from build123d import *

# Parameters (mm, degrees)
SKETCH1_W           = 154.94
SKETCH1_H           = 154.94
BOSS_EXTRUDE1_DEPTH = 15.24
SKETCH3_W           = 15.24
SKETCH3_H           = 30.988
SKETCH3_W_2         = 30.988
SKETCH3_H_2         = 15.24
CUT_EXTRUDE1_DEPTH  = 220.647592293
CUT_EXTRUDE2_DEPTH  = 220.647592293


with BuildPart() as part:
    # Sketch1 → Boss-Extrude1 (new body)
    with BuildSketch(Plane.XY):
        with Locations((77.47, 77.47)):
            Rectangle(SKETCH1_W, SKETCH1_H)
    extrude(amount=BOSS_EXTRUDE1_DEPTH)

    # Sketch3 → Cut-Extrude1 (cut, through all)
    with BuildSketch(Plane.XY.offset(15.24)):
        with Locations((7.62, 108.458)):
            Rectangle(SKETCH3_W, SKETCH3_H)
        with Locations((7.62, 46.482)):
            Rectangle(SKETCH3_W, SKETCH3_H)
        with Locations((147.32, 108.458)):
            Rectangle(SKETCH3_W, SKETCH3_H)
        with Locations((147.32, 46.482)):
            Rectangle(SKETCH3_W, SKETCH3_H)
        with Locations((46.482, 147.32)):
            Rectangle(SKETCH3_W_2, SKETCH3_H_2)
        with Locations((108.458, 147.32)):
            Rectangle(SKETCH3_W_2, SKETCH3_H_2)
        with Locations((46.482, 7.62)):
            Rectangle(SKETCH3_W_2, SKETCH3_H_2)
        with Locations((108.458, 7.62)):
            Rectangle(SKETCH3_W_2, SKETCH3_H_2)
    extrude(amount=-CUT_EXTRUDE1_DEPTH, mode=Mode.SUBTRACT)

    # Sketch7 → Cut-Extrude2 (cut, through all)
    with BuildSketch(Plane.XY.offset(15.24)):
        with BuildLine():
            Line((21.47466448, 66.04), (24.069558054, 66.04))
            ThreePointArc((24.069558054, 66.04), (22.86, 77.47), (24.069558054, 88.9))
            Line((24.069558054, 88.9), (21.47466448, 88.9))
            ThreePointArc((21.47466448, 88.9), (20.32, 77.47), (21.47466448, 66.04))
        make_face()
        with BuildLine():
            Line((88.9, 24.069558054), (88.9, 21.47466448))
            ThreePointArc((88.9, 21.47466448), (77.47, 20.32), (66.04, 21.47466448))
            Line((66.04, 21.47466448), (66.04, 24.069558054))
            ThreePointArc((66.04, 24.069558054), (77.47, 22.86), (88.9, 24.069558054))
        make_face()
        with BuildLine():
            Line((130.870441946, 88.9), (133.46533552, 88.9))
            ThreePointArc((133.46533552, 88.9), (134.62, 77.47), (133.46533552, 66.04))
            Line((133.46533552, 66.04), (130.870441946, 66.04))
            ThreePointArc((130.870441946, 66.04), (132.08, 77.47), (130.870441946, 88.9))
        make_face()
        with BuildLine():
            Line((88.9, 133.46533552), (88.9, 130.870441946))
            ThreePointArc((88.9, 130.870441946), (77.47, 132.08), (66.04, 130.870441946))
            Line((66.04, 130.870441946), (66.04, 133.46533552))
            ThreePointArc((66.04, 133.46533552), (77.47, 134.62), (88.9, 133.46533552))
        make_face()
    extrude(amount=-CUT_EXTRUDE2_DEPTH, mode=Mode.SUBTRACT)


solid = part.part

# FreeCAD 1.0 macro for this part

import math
import FreeCAD as App
import Part
import Sketcher
from FreeCAD import Vector
Q = App.Units.Quantity

doc = App.newDocument("Part")
body = doc.addObject("PartDesign::Body", "Body")

# Sketch on XY plane
sketch1 = doc.addObject("Sketcher::SketchObject", "Sketch")
body.addObject(sketch1)
sketch1.AttachmentSupport = (doc.XY_Plane, [""])
sketch1.MapMode = "FlatFace"
sketch1.addGeometry([
    Part.LineSegment(Vector(0, 154.94, 0), Vector(0, 0, 0)),
    Part.LineSegment(Vector(0, 0, 0), Vector(154.94, 0, 0)),
    Part.LineSegment(Vector(154.94, 0, 0), Vector(154.94, 154.94, 0)),
    Part.LineSegment(Vector(154.94, 154.94, 0), Vector(0, 154.94, 0)),
], False)
sketch1.addConstraint([
    Sketcher.Constraint("Coincident", 0, 2, 1, 1),
    Sketcher.Constraint("Coincident", 1, 2, 2, 1),
    Sketcher.Constraint("Coincident", 2, 2, 3, 1),
    Sketcher.Constraint("Coincident", 3, 2, 0, 1),
    Sketcher.Constraint("Vertical", 0),
    Sketcher.Constraint("Horizontal", 1),
    Sketcher.Constraint("Vertical", 2),
    Sketcher.Constraint("Horizontal", 3),
    Sketcher.Constraint("Coincident", 0, 2, -1, 1),
    Sketcher.Constraint("Equal", 3, 0),
    Sketcher.Constraint("DistanceX", 1, 1, 1, 2, Q("6.1 in")),
])
pad1 = doc.addObject("PartDesign::Pad", "Pad")
body.addObject(pad1)
pad1.Profile = sketch1
pad1.Length = Q("0.6 in")

# Sketch on XY plane
sketch2 = doc.addObject("Sketcher::SketchObject", "Sketch001")
body.addObject(sketch2)
sketch2.AttachmentSupport = (doc.XY_Plane, [""])
sketch2.MapMode = "FlatFace"
sketch2.AttachmentOffset = App.Placement(Vector(0, 0, 0.6 * 25.4), App.Rotation())
sketch2.addGeometry([
    Part.LineSegment(Vector(0, 123.952, 0), Vector(0, 92.964, 0)),  # 0
    Part.LineSegment(Vector(0, 92.964, 0), Vector(15.24, 92.964, 0)),  # 1
    Part.LineSegment(Vector(15.24, 92.964, 0), Vector(15.24, 123.952, 0)),  # 2
    Part.LineSegment(Vector(15.24, 123.952, 0), Vector(0, 123.952, 0)),  # 3
    Part.LineSegment(Vector(0, 61.976, 0), Vector(0, 30.988, 0)),  # 4
    Part.LineSegment(Vector(0, 30.988, 0), Vector(15.24, 30.988, 0)),  # 5
    Part.LineSegment(Vector(15.24, 30.988, 0), Vector(15.24, 61.976, 0)),  # 6
    Part.LineSegment(Vector(15.24, 61.976, 0), Vector(0, 61.976, 0)),  # 7
    Part.LineSegment(Vector(139.7, 123.952, 0), Vector(139.7, 92.964, 0)),  # 8
    Part.LineSegment(Vector(139.7, 92.964, 0), Vector(154.94, 92.964, 0)),  # 9
    Part.LineSegment(Vector(154.94, 92.964, 0), Vector(154.94, 123.952, 0)),  # 10
    Part.LineSegment(Vector(154.94, 123.952, 0), Vector(139.7, 123.952, 0)),  # 11
    Part.LineSegment(Vector(139.7, 61.976, 0), Vector(139.7, 30.988, 0)),  # 12
    Part.LineSegment(Vector(139.7, 30.988, 0), Vector(154.94, 30.988, 0)),  # 13
    Part.LineSegment(Vector(154.94, 30.988, 0), Vector(154.94, 61.976, 0)),  # 14
    Part.LineSegment(Vector(154.94, 61.976, 0), Vector(139.7, 61.976, 0)),  # 15
    Part.LineSegment(Vector(30.988, 154.94, 0), Vector(30.988, 139.7, 0)),  # 16
    Part.LineSegment(Vector(30.988, 139.7, 0), Vector(61.976, 139.7, 0)),  # 17
    Part.LineSegment(Vector(61.976, 139.7, 0), Vector(61.976, 154.94, 0)),  # 18
    Part.LineSegment(Vector(61.976, 154.94, 0), Vector(30.988, 154.94, 0)),  # 19
    Part.LineSegment(Vector(92.964, 154.94, 0), Vector(92.964, 139.7, 0)),  # 20
    Part.LineSegment(Vector(92.964, 139.7, 0), Vector(123.952, 139.7, 0)),  # 21
    Part.LineSegment(Vector(123.952, 139.7, 0), Vector(123.952, 154.94, 0)),  # 22
    Part.LineSegment(Vector(123.952, 154.94, 0), Vector(92.964, 154.94, 0)),  # 23
    Part.LineSegment(Vector(30.988, 15.24, 0), Vector(30.988, 0, 0)),  # 24
    Part.LineSegment(Vector(30.988, 0, 0), Vector(61.976, 0, 0)),  # 25
    Part.LineSegment(Vector(61.976, 0, 0), Vector(61.976, 15.24, 0)),  # 26
    Part.LineSegment(Vector(61.976, 15.24, 0), Vector(30.988, 15.24, 0)),  # 27
    Part.LineSegment(Vector(92.964, 15.24, 0), Vector(92.964, 0, 0)),  # 28
    Part.LineSegment(Vector(92.964, 0, 0), Vector(123.952, 0, 0)),  # 29
    Part.LineSegment(Vector(123.952, 0, 0), Vector(123.952, 15.24, 0)),  # 30
    Part.LineSegment(Vector(123.952, 15.24, 0), Vector(92.964, 15.24, 0)),  # 31
], False)
sketch2.addConstraint([
    Sketcher.Constraint("Coincident", 0, 2, 1, 1),
    Sketcher.Constraint("Coincident", 1, 2, 2, 1),
    Sketcher.Constraint("Coincident", 2, 2, 3, 1),
    Sketcher.Constraint("Coincident", 3, 2, 0, 1),
    Sketcher.Constraint("Coincident", 4, 2, 5, 1),
    Sketcher.Constraint("Coincident", 5, 2, 6, 1),
    Sketcher.Constraint("Coincident", 6, 2, 7, 1),
    Sketcher.Constraint("Coincident", 7, 2, 4, 1),
    Sketcher.Constraint("Coincident", 8, 2, 9, 1),
    Sketcher.Constraint("Coincident", 9, 2, 10, 1),
    Sketcher.Constraint("Coincident", 10, 2, 11, 1),
    Sketcher.Constraint("Coincident", 11, 2, 8, 1),
    Sketcher.Constraint("Coincident", 12, 2, 13, 1),
    Sketcher.Constraint("Coincident", 13, 2, 14, 1),
    Sketcher.Constraint("Coincident", 14, 2, 15, 1),
    Sketcher.Constraint("Coincident", 15, 2, 12, 1),
    Sketcher.Constraint("Coincident", 16, 2, 17, 1),
    Sketcher.Constraint("Coincident", 17, 2, 18, 1),
    Sketcher.Constraint("Coincident", 18, 2, 19, 1),
    Sketcher.Constraint("Coincident", 19, 2, 16, 1),
    Sketcher.Constraint("Coincident", 20, 2, 21, 1),
    Sketcher.Constraint("Coincident", 21, 2, 22, 1),
    Sketcher.Constraint("Coincident", 22, 2, 23, 1),
    Sketcher.Constraint("Coincident", 23, 2, 20, 1),
    Sketcher.Constraint("Coincident", 24, 2, 25, 1),
    Sketcher.Constraint("Coincident", 25, 2, 26, 1),
    Sketcher.Constraint("Coincident", 26, 2, 27, 1),
    Sketcher.Constraint("Coincident", 27, 2, 24, 1),
    Sketcher.Constraint("Coincident", 28, 2, 29, 1),
    Sketcher.Constraint("Coincident", 29, 2, 30, 1),
    Sketcher.Constraint("Coincident", 30, 2, 31, 1),
    Sketcher.Constraint("Coincident", 31, 2, 28, 1),
    Sketcher.Constraint("Vertical", 0),
    Sketcher.Constraint("Horizontal", 1),
    Sketcher.Constraint("Vertical", 2),
    Sketcher.Constraint("Horizontal", 3),
    Sketcher.Constraint("Vertical", 4),
    Sketcher.Constraint("Horizontal", 5),
    Sketcher.Constraint("Vertical", 6),
    Sketcher.Constraint("Horizontal", 7),
    Sketcher.Constraint("Vertical", 8),
    Sketcher.Constraint("Horizontal", 9),
    Sketcher.Constraint("Vertical", 10),
    Sketcher.Constraint("Horizontal", 11),
    Sketcher.Constraint("Vertical", 12),
    Sketcher.Constraint("Horizontal", 13),
    Sketcher.Constraint("Vertical", 14),
    Sketcher.Constraint("Horizontal", 15),
    Sketcher.Constraint("Vertical", 16),
    Sketcher.Constraint("Horizontal", 17),
    Sketcher.Constraint("Vertical", 18),
    Sketcher.Constraint("Horizontal", 19),
    Sketcher.Constraint("Vertical", 20),
    Sketcher.Constraint("Horizontal", 21),
    Sketcher.Constraint("Vertical", 22),
    Sketcher.Constraint("Horizontal", 23),
    Sketcher.Constraint("Vertical", 24),
    Sketcher.Constraint("Horizontal", 25),
    Sketcher.Constraint("Vertical", 26),
    Sketcher.Constraint("Horizontal", 27),
    Sketcher.Constraint("Vertical", 28),
    Sketcher.Constraint("Horizontal", 29),
    Sketcher.Constraint("Vertical", 30),
    Sketcher.Constraint("Horizontal", 31),
    Sketcher.Constraint("PointOnObject", 0, 2, -2),
    Sketcher.Constraint("PointOnObject", 4, 2, -2),
    Sketcher.Constraint("PointOnObject", 24, 2, -1),
    Sketcher.Constraint("PointOnObject", 28, 2, -1),
    Sketcher.Constraint("Horizontal", 1, 2, 8, 2),
    Sketcher.Constraint("Horizontal", 3, 2, 10, 2),
    Sketcher.Constraint("Horizontal", 5, 2, 12, 2),
    Sketcher.Constraint("Horizontal", 7, 2, 14, 2),
    Sketcher.Constraint("Horizontal", 17, 2, 20, 2),
    Sketcher.Constraint("Horizontal", 19, 2, 22, 2),
    Sketcher.Constraint("Horizontal", 27, 2, 30, 2),
    Sketcher.Constraint("Vertical", 2, 2, 5, 2),
    Sketcher.Constraint("Vertical", 11, 2, 12, 2),
    Sketcher.Constraint("Vertical", 10, 2, 13, 2),
    Sketcher.Constraint("Vertical", 19, 2, 24, 2),
    Sketcher.Constraint("Vertical", 18, 2, 25, 2),
    Sketcher.Constraint("Vertical", 23, 2, 28, 2),
    Sketcher.Constraint("Vertical", 22, 2, 29, 2),
    Sketcher.Constraint("Equal", 7, 9),
    Sketcher.Constraint("Equal", 19, 21),
    Sketcher.Constraint("Equal", 31, 0),
    Sketcher.Constraint("Equal", 2, 4),
    Sketcher.Constraint("Equal", 15, 16),
    Sketcher.Constraint("Equal", 22, 24),
    Sketcher.Constraint("DistanceX", 1, 1, 1, 2, Q("0.6 in")),
    Sketcher.Constraint("DistanceX", 17, 1, 17, 2, Q("1.22 in")),
    Sketcher.Constraint("DistanceX", -1, 1, 8, 2, Q("5.5 in")),
    Sketcher.Constraint("DistanceY", -1, 1, 16, 2, Q("5.5 in")),
    Sketcher.Constraint("DistanceY", -1, 1, 0, 2, Q("3.66 in")),
    Sketcher.Constraint("DistanceY", -1, 1, 4, 2, Q("1.22 in")),
    Sketcher.Constraint("DistanceX", -1, 1, 16, 2, Q("1.22 in")),
    Sketcher.Constraint("DistanceX", -1, 1, 20, 2, Q("3.66 in")),
])
pocket1 = doc.addObject("PartDesign::Pocket", "Pocket")
body.addObject(pocket1)
pocket1.Profile = sketch2
pocket1.Type = "ThroughAll"

# Sketch on XY plane
sketch3 = doc.addObject("Sketcher::SketchObject", "Sketch002")
body.addObject(sketch3)
sketch3.AttachmentSupport = (doc.XY_Plane, [""])
sketch3.MapMode = "FlatFace"
sketch3.AttachmentOffset = App.Placement(Vector(0, 0, 0.6 * 25.4), App.Rotation())
sketch3.addGeometry([
    Part.LineSegment(Vector(21.474664, 66.04, 0), Vector(24.069558, 66.04, 0)),  # 0
    Part.ArcOfCircle(Part.Circle(Vector(77.47, 77.47, 0), Vector(0, 0, 1), 54.61), math.radians(167.91853), math.radians(192.08147)),  # 1
    Part.LineSegment(Vector(24.069558, 88.9, 0), Vector(21.474664, 88.9, 0)),  # 2
    Part.ArcOfCircle(Part.Circle(Vector(77.47, 77.47, 0), Vector(0, 0, 1), 57.15), math.radians(168.463041), math.radians(191.536959)),  # 3
    Part.LineSegment(Vector(88.9, 21.474664, 0), Vector(88.9, 24.069558, 0)),  # 4
    Part.ArcOfCircle(Part.Circle(Vector(77.47, 77.47, 0), Vector(0, 0, 1), 54.61), math.radians(-102.08147), math.radians(-77.91853)),  # 5
    Part.LineSegment(Vector(66.04, 24.069558, 0), Vector(66.04, 21.474664, 0)),  # 6
    Part.ArcOfCircle(Part.Circle(Vector(77.47, 77.47, 0), Vector(0, 0, 1), 57.15), math.radians(-101.536959), math.radians(-78.463041)),  # 7
    Part.LineSegment(Vector(133.465336, 88.9, 0), Vector(130.870442, 88.9, 0)),  # 8
    Part.ArcOfCircle(Part.Circle(Vector(77.47, 77.47, 0), Vector(0, 0, 1), 54.61), math.radians(-12.08147), math.radians(12.08147)),  # 9
    Part.LineSegment(Vector(130.870442, 66.04, 0), Vector(133.465336, 66.04, 0)),  # 10
    Part.ArcOfCircle(Part.Circle(Vector(77.47, 77.47, 0), Vector(0, 0, 1), 57.15), math.radians(-11.536959), math.radians(11.536959)),  # 11
    Part.LineSegment(Vector(88.9, 130.870442, 0), Vector(88.9, 133.465336, 0)),  # 12
    Part.ArcOfCircle(Part.Circle(Vector(77.47, 77.47, 0), Vector(0, 0, 1), 57.15), math.radians(78.463041), math.radians(101.536959)),  # 13
    Part.LineSegment(Vector(66.04, 133.465336, 0), Vector(66.04, 130.870442, 0)),  # 14
    Part.ArcOfCircle(Part.Circle(Vector(77.47, 77.47, 0), Vector(0, 0, 1), 54.61), math.radians(77.91853), math.radians(102.08147)),  # 15
], False)
sketch3.addConstraint([
    Sketcher.Constraint("Coincident", 0, 2, 1, 2),
    Sketcher.Constraint("Coincident", 1, 1, 2, 1),
    Sketcher.Constraint("Coincident", 2, 2, 3, 1),
    Sketcher.Constraint("Coincident", 3, 2, 0, 1),
    Sketcher.Constraint("Coincident", 4, 2, 5, 2),
    Sketcher.Constraint("Coincident", 5, 1, 6, 1),
    Sketcher.Constraint("Coincident", 6, 2, 7, 1),
    Sketcher.Constraint("Coincident", 7, 2, 4, 1),
    Sketcher.Constraint("Coincident", 8, 2, 9, 2),
    Sketcher.Constraint("Coincident", 9, 1, 10, 1),
    Sketcher.Constraint("Coincident", 10, 2, 11, 1),
    Sketcher.Constraint("Coincident", 11, 2, 8, 1),
    Sketcher.Constraint("Coincident", 12, 2, 13, 1),
    Sketcher.Constraint("Coincident", 13, 2, 14, 1),
    Sketcher.Constraint("Coincident", 14, 2, 15, 2),
    Sketcher.Constraint("Coincident", 15, 1, 12, 1),
    Sketcher.Constraint("Horizontal", 0),
    Sketcher.Constraint("Horizontal", 2),
    Sketcher.Constraint("Vertical", 4),
    Sketcher.Constraint("Vertical", 6),
    Sketcher.Constraint("Horizontal", 8),
    Sketcher.Constraint("Horizontal", 10),
    Sketcher.Constraint("Vertical", 12),
    Sketcher.Constraint("Vertical", 14),
    Sketcher.Constraint("Coincident", 3, 3, 1, 3),
    Sketcher.Constraint("Coincident", 5, 3, 1, 3),
    Sketcher.Constraint("Coincident", 7, 3, 1, 3),
    Sketcher.Constraint("Coincident", 9, 3, 1, 3),
    Sketcher.Constraint("Coincident", 11, 3, 1, 3),
    Sketcher.Constraint("Coincident", 13, 3, 1, 3),
    Sketcher.Constraint("Coincident", 15, 3, 1, 3),
    Sketcher.Constraint("Equal", 1, 5),
    Sketcher.Constraint("Equal", 3, 7),
    Sketcher.Constraint("Equal", 5, 9),
    Sketcher.Constraint("Equal", 7, 11),
    Sketcher.Constraint("Equal", 11, 13),
    Sketcher.Constraint("Equal", 9, 15),
    Sketcher.Constraint("Horizontal", 4, 2, 5, 1),
    Sketcher.Constraint("Horizontal", 2, 2, 8, 2),
    Sketcher.Constraint("Horizontal", 3, 2, 9, 1),
    Sketcher.Constraint("Horizontal", 12, 2, 13, 2),
    Sketcher.Constraint("Vertical", 0, 2, 1, 1),
    Sketcher.Constraint("Vertical", 7, 2, 12, 2),
    Sketcher.Constraint("Equal", 10, 4),
    Sketcher.Constraint("Radius", 1, Q("2.15 in")),
    Sketcher.Constraint("Radius", 3, Q("2.25 in")),
    Sketcher.Constraint("DistanceY", -1, 1, 0, 2, Q("2.6 in")),
    Sketcher.Constraint("DistanceY", -1, 1, 1, 1, Q("3.5 in")),
    Sketcher.Constraint("DistanceX", -1, 1, 4, 2, Q("3.5 in")),
])
pocket2 = doc.addObject("PartDesign::Pocket", "Pocket001")
body.addObject(pocket2)
pocket2.Profile = sketch3
pocket2.Type = "ThroughAll"

doc.recompute()
